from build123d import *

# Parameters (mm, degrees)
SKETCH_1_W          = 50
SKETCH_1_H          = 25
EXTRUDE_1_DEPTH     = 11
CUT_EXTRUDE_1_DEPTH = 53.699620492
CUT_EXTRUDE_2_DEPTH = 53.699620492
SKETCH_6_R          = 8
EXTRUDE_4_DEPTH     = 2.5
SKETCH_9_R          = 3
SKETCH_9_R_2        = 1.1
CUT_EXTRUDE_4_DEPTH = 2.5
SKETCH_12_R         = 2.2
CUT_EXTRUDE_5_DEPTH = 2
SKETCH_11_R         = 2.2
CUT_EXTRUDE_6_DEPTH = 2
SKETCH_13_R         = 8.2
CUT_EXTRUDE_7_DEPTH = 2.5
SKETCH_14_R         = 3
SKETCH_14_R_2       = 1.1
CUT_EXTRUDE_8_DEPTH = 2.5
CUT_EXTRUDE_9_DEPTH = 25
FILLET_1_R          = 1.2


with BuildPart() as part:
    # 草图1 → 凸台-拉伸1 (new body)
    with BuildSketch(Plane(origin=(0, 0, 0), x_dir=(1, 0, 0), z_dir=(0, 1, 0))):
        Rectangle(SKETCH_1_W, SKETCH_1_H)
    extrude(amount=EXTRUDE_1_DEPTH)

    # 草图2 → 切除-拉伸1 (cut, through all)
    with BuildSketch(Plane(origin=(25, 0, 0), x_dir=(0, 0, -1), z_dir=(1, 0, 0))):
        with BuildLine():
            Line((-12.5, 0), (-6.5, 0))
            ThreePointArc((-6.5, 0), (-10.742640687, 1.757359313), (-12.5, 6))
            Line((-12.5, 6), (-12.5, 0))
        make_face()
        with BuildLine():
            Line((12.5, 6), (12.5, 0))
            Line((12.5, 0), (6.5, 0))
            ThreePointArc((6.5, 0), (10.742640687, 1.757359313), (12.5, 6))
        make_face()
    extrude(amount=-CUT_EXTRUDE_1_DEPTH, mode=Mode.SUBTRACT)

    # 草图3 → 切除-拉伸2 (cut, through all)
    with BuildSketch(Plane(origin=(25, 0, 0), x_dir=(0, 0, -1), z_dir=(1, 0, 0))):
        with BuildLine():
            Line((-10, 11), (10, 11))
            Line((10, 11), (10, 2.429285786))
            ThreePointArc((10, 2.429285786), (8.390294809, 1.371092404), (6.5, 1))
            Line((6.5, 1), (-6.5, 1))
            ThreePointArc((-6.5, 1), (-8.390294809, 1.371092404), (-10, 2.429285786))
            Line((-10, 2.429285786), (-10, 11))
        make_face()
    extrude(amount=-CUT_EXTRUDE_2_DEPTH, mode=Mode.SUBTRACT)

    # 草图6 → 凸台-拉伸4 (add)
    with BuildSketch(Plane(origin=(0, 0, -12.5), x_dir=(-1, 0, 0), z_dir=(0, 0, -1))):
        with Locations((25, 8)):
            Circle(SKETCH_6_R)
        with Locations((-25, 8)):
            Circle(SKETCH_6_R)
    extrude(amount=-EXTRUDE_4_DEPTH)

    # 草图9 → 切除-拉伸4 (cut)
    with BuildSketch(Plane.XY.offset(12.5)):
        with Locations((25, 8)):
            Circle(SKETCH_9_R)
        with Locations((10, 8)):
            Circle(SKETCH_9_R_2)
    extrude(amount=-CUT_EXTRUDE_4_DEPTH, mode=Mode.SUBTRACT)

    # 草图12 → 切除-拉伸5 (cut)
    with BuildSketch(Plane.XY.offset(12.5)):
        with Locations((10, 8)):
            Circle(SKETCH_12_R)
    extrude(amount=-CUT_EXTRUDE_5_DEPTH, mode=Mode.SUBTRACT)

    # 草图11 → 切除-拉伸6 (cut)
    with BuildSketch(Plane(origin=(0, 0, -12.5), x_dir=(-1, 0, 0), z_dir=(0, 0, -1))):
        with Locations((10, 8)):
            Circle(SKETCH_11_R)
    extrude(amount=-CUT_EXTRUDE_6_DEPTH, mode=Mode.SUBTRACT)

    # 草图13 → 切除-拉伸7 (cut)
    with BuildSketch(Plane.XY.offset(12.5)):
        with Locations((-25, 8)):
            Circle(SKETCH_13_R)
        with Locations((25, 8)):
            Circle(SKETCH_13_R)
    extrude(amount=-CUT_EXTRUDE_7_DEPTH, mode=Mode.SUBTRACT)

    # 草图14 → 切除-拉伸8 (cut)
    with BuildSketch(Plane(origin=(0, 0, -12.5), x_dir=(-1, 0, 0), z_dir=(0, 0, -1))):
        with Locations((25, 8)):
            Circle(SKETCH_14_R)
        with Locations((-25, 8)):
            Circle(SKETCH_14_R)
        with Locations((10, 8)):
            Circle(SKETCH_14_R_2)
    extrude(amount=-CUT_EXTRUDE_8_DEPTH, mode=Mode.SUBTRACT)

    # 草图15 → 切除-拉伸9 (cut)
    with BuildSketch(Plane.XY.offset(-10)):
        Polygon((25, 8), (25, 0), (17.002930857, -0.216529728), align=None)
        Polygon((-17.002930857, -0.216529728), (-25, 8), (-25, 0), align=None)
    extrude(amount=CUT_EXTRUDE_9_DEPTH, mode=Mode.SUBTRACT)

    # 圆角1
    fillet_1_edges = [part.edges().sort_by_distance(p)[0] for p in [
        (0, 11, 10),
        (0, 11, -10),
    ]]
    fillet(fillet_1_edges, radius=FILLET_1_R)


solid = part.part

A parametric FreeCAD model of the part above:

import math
import FreeCAD as App
import Part
import Sketcher
from FreeCAD import Vector


def edges_at(feature, points):
    """Names of the edges that pass closest to the given points."""
    edges = feature.Shape.Edges
    near = lambda p: min(range(len(edges)), key=lambda i: edges[i].distToShape(Part.Vertex(*p))[0])
    return sorted({f"Edge{near(p) + 1}" for p in points})


def add_polygon(sketch, points):
    """Adds a closed chain of lines whose ends are joined by coincident constraints."""
    first, n = sketch.GeometryCount, len(points)
    for a, b in zip(points, points[1:] + points[:1]):
        sketch.addGeometry(Part.LineSegment(App.Vector(*a, 0), App.Vector(*b, 0)), False)
    for i in range(n):
        sketch.addConstraint(Sketcher.Constraint("Coincident", first + i, 2, first + (i + 1) % n, 1))

doc = App.newDocument("Part")
params = doc.addObject("Spreadsheet::Sheet", "Params")
for row, (alias, value) in enumerate([
    ("sketch1_width", "50 mm"),
    ("sketch1_height", "25 mm"),
    ("pad1_length", "11 mm"),
    ("sketch2_radius", "6 mm"),
    ("sketch3_radius", "5 mm"),
    ("sketch3_height", "20 mm"),
    ("sketch3_height2", "13 mm"),
    ("sketch4_diameter", "16 mm"),
    ("pad2_length", "2.5 mm"),
    ("sketch5_diameter", "6 mm"),
    ("sketch5_diameter2", "2.2 mm"),
    ("pocket3_length", "2.5 mm"),
    ("sketch6_diameter", "4.4 mm"),
    ("pocket4_length", "2 mm"),
    ("sketch7_diameter", "4.4 mm"),
    ("pocket5_length", "2 mm"),
    ("sketch8_diameter", "16.4 mm"),
    ("pocket6_length", "2.5 mm"),
    ("sketch9_diameter", "6 mm"),
    ("sketch9_diameter2", "2.2 mm"),
    ("pocket7_length", "2.5 mm"),
    ("sketch10_height", "8 mm"),
    ("sketch10_length", "8 mm"),
    ("pocket8_length", "25 mm"),
    ("fillet_radius", "1.2 mm"),
], start=1):
    params.set(f"A{row}", alias)
    params.set(f"B{row}", "=" + value)
    params.setAlias(f"B{row}", alias)

body = doc.addObject("PartDesign::Body", "Body")

# Sketch on XZ plane
sketch1 = body.newObject("Sketcher::SketchObject", "Sketch")
sketch1.AttachmentSupport = (doc.getObject("XZ_Plane"), [""])
sketch1.MapMode = "FlatFace"
add_polygon(sketch1, [(-25, -12), (-25, 12), (25, 12), (25, -12)])  # lines 0-3
sketch1.addConstraint([
    Sketcher.Constraint("Vertical", 0),
    Sketcher.Constraint("Horizontal", 1),
    Sketcher.Constraint("Vertical", 2),
    Sketcher.Constraint("Horizontal", 3),
    Sketcher.Constraint("Symmetric", 0, 2, 2, 2, -1, 1),
    Sketcher.Constraint("DistanceX", 1, 1, 1, 2, 50.0),
    Sketcher.Constraint("DistanceY", 0, 1, 0, 2, 25.0),
])
sketch1.setExpression("Constraints[9]", "Params.sketch1_width")
sketch1.setExpression("Constraints[10]", "Params.sketch1_height")
pad1 = body.newObject("PartDesign::Pad", "Pad")
pad1.Profile = sketch1
pad1.setExpression("Length", "Params.pad1_length")
pad1.Reversed = True

# Sketch on YZ plane
sketch2 = body.newObject("Sketcher::SketchObject", "Sketch001")
sketch2.AttachmentSupport = (doc.getObject("YZ_Plane"), [""])
sketch2.MapMode = "FlatFace"
sketch2.AttachmentOffset = App.Placement(Vector(0, 0, 25), App.Rotation())
sketch2.addGeometry([
    Part.LineSegment(Vector(0, 12, 0), Vector(0, 6, 0)),  # 0
    Part.ArcOfCircle(Part.Circle(Vector(6, 6, 0), Vector(0, 0, 1), 6), math.radians(90), math.radians(180)),  # 1
    Part.LineSegment(Vector(6, 12, 0), Vector(0, 12, 0)),  # 2
    Part.LineSegment(Vector(0, -12, 0), Vector(6, -12, 0)),  # 3
    Part.ArcOfCircle(Part.Circle(Vector(6, -6, 0), Vector(0, 0, 1), 6), math.radians(180), math.radians(270)),  # 4
    Part.LineSegment(Vector(0, -6, 0), Vector(0, -12, 0)),  # 5
], False)
sketch2.addConstraint([
    Sketcher.Constraint("Tangent", 0, 2, 1, 2),
    Sketcher.Constraint("Tangent", 1, 1, 2, 1),
    Sketcher.Constraint("Coincident", 2, 2, 0, 1),
    Sketcher.Constraint("Tangent", 3, 2, 4, 2),
    Sketcher.Constraint("Tangent", 4, 1, 5, 1),
    Sketcher.Constraint("Coincident", 5, 2, 3, 1),
    Sketcher.Constraint("Vertical", 0),
    Sketcher.Constraint("Horizontal", 2),
    Sketcher.Constraint("Horizontal", 3),
    Sketcher.Constraint("Vertical", 5),
    Sketcher.Constraint("Equal", 1, 4),
    Sketcher.Constraint("Symmetric", 0, 2, 4, 1, -1, 1),
    Sketcher.Constraint("PointOnObject", 0, 2, -2),
    Sketcher.Constraint("Radius", 1, 6.0),
    Sketcher.Constraint("DistanceY", 4, 3, 1, 3, 13.0),
])
sketch2.setExpression("Constraints[13]", "Params.sketch2_radius")
pocket1 = body.newObject("PartDesign::Pocket", "Pocket")
pocket1.Profile = sketch2
pocket1.Type = "ThroughAll"

# Sketch on YZ plane
sketch3 = body.newObject("Sketcher::SketchObject", "Sketch002")
sketch3.AttachmentSupport = (doc.getObject("YZ_Plane"), [""])
sketch3.MapMode = "FlatFace"
sketch3.AttachmentOffset = App.Placement(Vector(0, 0, 25), App.Rotation())
sketch3.addGeometry([
    Part.LineSegment(Vector(11, -10, 0), Vector(11, 10, 0)),  # 0
    Part.LineSegment(Vector(11, 10, 0), Vector(2.4, 10, 0)),  # 1
    Part.ArcOfCircle(Part.Circle(Vector(6, 6.5, 0), Vector(0, 0, 1), 5), math.radians(136), math.radians(180)),  # 2
    Part.LineSegment(Vector(1, 6.5, 0), Vector(1, -6.5, 0)),  # 3
    Part.ArcOfCircle(Part.Circle(Vector(6, -6.5, 0), Vector(0, 0, 1), 5), math.radians(-180), math.radians(-136)),  # 4
    Part.LineSegment(Vector(2.4, -10, 0), Vector(11, -10, 0)),  # 5
], False)
sketch3.addConstraint([
    Sketcher.Constraint("Coincident", 0, 2, 1, 1),
    Sketcher.Constraint("Coincident", 1, 2, 2, 1),
    Sketcher.Constraint("Tangent", 2, 2, 3, 1),
    Sketcher.Constraint("Tangent", 3, 2, 4, 1),
    Sketcher.Constraint("Coincident", 4, 2, 5, 1),
    Sketcher.Constraint("Coincident", 5, 2, 0, 1),
    Sketcher.Constraint("Vertical", 0),
    Sketcher.Constraint("Horizontal", 1),
    Sketcher.Constraint("Vertical", 3),
    Sketcher.Constraint("Horizontal", 5),
    Sketcher.Constraint("Equal", 2, 4),
    Sketcher.Constraint("Symmetric", 1, 2, 4, 2, -1),
    Sketcher.Constraint("Radius", 2, 5.0),
    Sketcher.Constraint("DistanceY", 0, 1, 0, 2, 20.0),
    Sketcher.Constraint("DistanceY", 3, 2, 3, 1, 13.0),
    Sketcher.Constraint("DistanceX", -1, 1, 2, 3, 6.0),
    Sketcher.Constraint("DistanceX", -1, 1, 0, 2, 11.0),
])
sketch3.setExpression("Constraints[12]", "Params.sketch3_radius")
sketch3.setExpression("Constraints[13]", "Params.sketch3_height")
sketch3.setExpression("Constraints[14]", "Params.sketch3_height2")
pocket2 = body.newObject("PartDesign::Pocket", "Pocket001")
pocket2.Profile = sketch3
pocket2.Type = "ThroughAll"

# Sketch on XY plane
sketch4 = body.newObject("Sketcher::SketchObject", "Sketch003")
sketch4.AttachmentSupport = (doc.getObject("XY_Plane"), [""])
sketch4.MapMode = "FlatFace"
sketch4.AttachmentOffset = App.Placement(Vector(0, 0, -12.5), App.Rotation())
sketch4.addGeometry([
    Part.Circle(Vector(-25, 8, 0), Vector(0, 0, 1), 8),
    Part.Circle(Vector(25, 8, 0), Vector(0, 0, 1), 8),
], False)
sketch4.addConstraint([
    Sketcher.Constraint("Equal", 0, 1),
    Sketcher.Constraint("Symmetric", 0, 3, 1, 3, -2),
    Sketcher.Constraint("Diameter", 0, 16.0),
    Sketcher.Constraint("DistanceX", 0, 3, -1, 1, 25.0),
    Sketcher.Constraint("DistanceY", -1, 1, 0, 3, 8.0),
])
sketch4.setExpression("Constraints[2]", "Params.sketch4_diameter")
pad2 = body.newObject("PartDesign::Pad", "Pad001")
pad2.Profile = sketch4
pad2.setExpression("Length", "Params.pad2_length")

# Sketch on XY plane
sketch5 = body.newObject("Sketcher::SketchObject", "Sketch004")
sketch5.AttachmentSupport = (doc.getObject("XY_Plane"), [""])
sketch5.MapMode = "FlatFace"
sketch5.AttachmentOffset = App.Placement(Vector(0, 0, 12.5), App.Rotation())
sketch5.addGeometry([
    Part.Circle(Vector(25, 8, 0), Vector(0, 0, 1), 3),
    Part.Circle(Vector(10, 8, 0), Vector(0, 0, 1), 1.1),
], False)
sketch5.addConstraint([
    Sketcher.Constraint("Horizontal", 0, 3, 1, 3),
    Sketcher.Constraint("Diameter", 0, 6.0),
    Sketcher.Constraint("Diameter", 1, 2.2),
    Sketcher.Constraint("DistanceX", -1, 1, 0, 3, 25.0),
    Sketcher.Constraint("DistanceY", -1, 1, 0, 3, 8.0),
    Sketcher.Constraint("DistanceX", -1, 1, 1, 3, 10.0),
])
sketch5.setExpression("Constraints[1]", "Params.sketch5_diameter")
sketch5.setExpression("Constraints[2]", "Params.sketch5_diameter2")
pocket3 = body.newObject("PartDesign::Pocket", "Pocket002")
pocket3.Profile = sketch5
pocket3.setExpression("Length", "Params.pocket3_length")

# Sketch on XY plane
sketch6 = body.newObject("Sketcher::SketchObject", "Sketch005")
sketch6.AttachmentSupport = (doc.getObject("XY_Plane"), [""])
sketch6.MapMode = "FlatFace"
sketch6.AttachmentOffset = App.Placement(Vector(0, 0, 12.5), App.Rotation())
sketch6.addGeometry(Part.Circle(Vector(10, 8, 0), Vector(0, 0, 1), 2.2), False)
sketch6.addConstraint([
    Sketcher.Constraint("Diameter", 0, 4.4),
    Sketcher.Constraint("DistanceX", -1, 1, 0, 3, 10.0),
    Sketcher.Constraint("DistanceY", -1, 1, 0, 3, 8.0),
])
sketch6.setExpression("Constraints[0]", "Params.sketch6_diameter")
pocket4 = body.newObject("PartDesign::Pocket", "Pocket003")
pocket4.Profile = sketch6
pocket4.setExpression("Length", "Params.pocket4_length")

# Sketch on XY plane
sketch7 = body.newObject("Sketcher::SketchObject", "Sketch006")
sketch7.AttachmentSupport = (doc.getObject("XY_Plane"), [""])
sketch7.MapMode = "FlatFace"
sketch7.AttachmentOffset = App.Placement(Vector(0, 0, -12.5), App.Rotation())
sketch7.addGeometry(Part.Circle(Vector(-10, 8, 0), Vector(0, 0, 1), 2.2), False)
sketch7.addConstraint([
    Sketcher.Constraint("Diameter", 0, 4.4),
    Sketcher.Constraint("DistanceX", 0, 3, -1, 1, 10.0),
    Sketcher.Constraint("DistanceY", -1, 1, 0, 3, 8.0),
])
sketch7.setExpression("Constraints[0]", "Params.sketch7_diameter")
pocket5 = body.newObject("PartDesign::Pocket", "Pocket004")
pocket5.Profile = sketch7
pocket5.setExpression("Length", "Params.pocket5_length")
pocket5.Reversed = True

# Sketch on XY plane
sketch8 = body.newObject("Sketcher::SketchObject", "Sketch007")
sketch8.AttachmentSupport = (doc.getObject("XY_Plane"), [""])
sketch8.MapMode = "FlatFace"
sketch8.AttachmentOffset = App.Placement(Vector(0, 0, 12.5), App.Rotation())
sketch8.addGeometry([
    Part.Circle(Vector(-25, 8, 0), Vector(0, 0, 1), 8),
    Part.Circle(Vector(25, 8, 0), Vector(0, 0, 1), 8),
], False)
sketch8.addConstraint([
    Sketcher.Constraint("Equal", 0, 1),
    Sketcher.Constraint("Symmetric", 0, 3, 1, 3, -2),
    Sketcher.Constraint("Diameter", 0, 16.4),
    Sketcher.Constraint("DistanceX", 0, 3, -1, 1, 25.0),
    Sketcher.Constraint("DistanceY", -1, 1, 0, 3, 8.0),
])
sketch8.setExpression("Constraints[2]", "Params.sketch8_diameter")
pocket6 = body.newObject("PartDesign::Pocket", "Pocket005")
pocket6.Profile = sketch8
pocket6.setExpression("Length", "Params.pocket6_length")

# Sketch on XY plane
sketch9 = body.newObject("Sketcher::SketchObject", "Sketch008")
sketch9.AttachmentSupport = (doc.getObject("XY_Plane"), [""])
sketch9.MapMode = "FlatFace"
sketch9.AttachmentOffset = App.Placement(Vector(0, 0, -12.5), App.Rotation())
sketch9.addGeometry([
    Part.Circle(Vector(-25, 8, 0), Vector(0, 0, 1), 3),
    Part.Circle(Vector(25, 8, 0), Vector(0, 0, 1), 3),
    Part.Circle(Vector(-10, 8, 0), Vector(0, 0, 1), 1.1),
], False)
sketch9.addConstraint([
    Sketcher.Constraint("Equal", 0, 1),
    Sketcher.Constraint("Symmetric", 0, 3, 1, 3, -2),
    Sketcher.Constraint("Horizontal", 1, 3, 2, 3),
    Sketcher.Constraint("Diameter", 0, 6.0),
    Sketcher.Constraint("Diameter", 2, 2.2),
    Sketcher.Constraint("DistanceX", 0, 3, -1, 1, 25.0),
    Sketcher.Constraint("DistanceY", -1, 1, 0, 3, 8.0),
    Sketcher.Constraint("DistanceX", 2, 3, -1, 1, 10.0),
])
sketch9.setExpression("Constraints[3]", "Params.sketch9_diameter")
sketch9.setExpression("Constraints[4]", "Params.sketch9_diameter2")
pocket7 = body.newObject("PartDesign::Pocket", "Pocket006")
pocket7.Profile = sketch9
pocket7.setExpression("Length", "Params.pocket7_length")
pocket7.Reversed = True

# Sketch on XY plane
sketch10 = body.newObject("Sketcher::SketchObject", "Sketch009")
sketch10.AttachmentSupport = (doc.getObject("XY_Plane"), [""])
sketch10.MapMode = "FlatFace"
sketch10.AttachmentOffset = App.Placement(Vector(0, 0, -10), App.Rotation())
add_polygon(sketch10, [(25, 0), (25, 8), (17.002931, -0.21653)])  # lines 0-2
add_polygon(sketch10, [(-17.002931, -0.21653), (-25, 8), (-25, 0)])  # lines 3-5
sketch10.addConstraint([
    Sketcher.Constraint("Vertical", 0),
    Sketcher.Constraint("Vertical", 4),
    Sketcher.Constraint("Symmetric", 2, 2, 4, 2, -1, 1),
    Sketcher.Constraint("Symmetric", 1, 2, 5, 2, -2),
    Sketcher.Constraint("PointOnObject", 2, 2, -1),
    Sketcher.Constraint("Horizontal", 0, 2, 3, 2),
    Sketcher.Constraint("DistanceY", 0, 1, 0, 2, 8.0),
    Sketcher.Constraint("Distance", 2, 8.0),
    Sketcher.Constraint("DistanceX", -1, 1, 0, 2, 25.0),
    Sketcher.Constraint("DistanceX", -1, 1, 1, 2, 17.002931),
])
sketch10.setExpression("Constraints[12]", "Params.sketch10_height")
sketch10.setExpression("Constraints[13]", "Params.sketch10_length")
pocket8 = body.newObject("PartDesign::Pocket", "Pocket007")
pocket8.Profile = sketch10
pocket8.setExpression("Length", "Params.pocket8_length")
pocket8.Reversed = True
doc.recompute()

fillet = body.newObject("PartDesign::Fillet", "Fillet")
fillet.Base = (pocket8, edges_at(pocket8, [(0, 11, 10), (0, 11, -10)]))
fillet.setExpression("Radius", "Params.fillet_radius")

doc.recompute()
